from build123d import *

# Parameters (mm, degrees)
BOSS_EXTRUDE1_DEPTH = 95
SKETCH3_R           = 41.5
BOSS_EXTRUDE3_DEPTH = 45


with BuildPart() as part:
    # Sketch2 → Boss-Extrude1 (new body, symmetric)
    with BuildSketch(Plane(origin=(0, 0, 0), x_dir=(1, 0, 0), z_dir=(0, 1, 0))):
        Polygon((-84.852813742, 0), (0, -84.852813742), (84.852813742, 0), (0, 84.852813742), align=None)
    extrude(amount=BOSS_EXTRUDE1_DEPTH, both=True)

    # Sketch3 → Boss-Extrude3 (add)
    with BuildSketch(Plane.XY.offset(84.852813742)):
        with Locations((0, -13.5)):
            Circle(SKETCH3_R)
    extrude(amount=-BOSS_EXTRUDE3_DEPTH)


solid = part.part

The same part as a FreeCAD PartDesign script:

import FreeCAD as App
import Part
import Sketcher
Q = App.Units.Quantity

doc = App.newDocument("Part")
params = doc.addObject("Spreadsheet::Sheet", "Params")
for row, (alias, value) in enumerate([
    ("sketch1_length", "120 mm"),
    ("pad1_length", "190 mm"),
    ("sketch2_diameter", "83 mm"),
    ("pad2_length", "45 mm"),
], start=1):
    params.set(f"A{row}", alias)
    params.set(f"B{row}", "=" + value)
    params.setAlias(f"B{row}", alias)

body = doc.addObject("PartDesign::Body", "Body")

# Sketch on XZ plane
sketch1 = body.newObject("Sketcher::SketchObject", "Sketch")
sketch1.AttachmentSupport = (doc.getObject("XZ_Plane"), [""])
sketch1.MapMode = "FlatFace"
sketch1.addGeometry([
    Part.LineSegment(App.Vector(-85, 0, 0), App.Vector(0, 85, 0)),
    Part.LineSegment(App.Vector(0, 85, 0), App.Vector(85, 0, 0)),
    Part.LineSegment(App.Vector(85, 0, 0), App.Vector(0, -85, 0)),
    Part.LineSegment(App.Vector(0, -85, 0), App.Vector(-85, 0, 0)),
], False)
sketch1.addConstraint([
    Sketcher.Constraint("Coincident", 0, 2, 1, 1),
    Sketcher.Constraint("Coincident", 1, 2, 2, 1),
    Sketcher.Constraint("Coincident", 2, 2, 3, 1),
    Sketcher.Constraint("Coincident", 3, 2, 0, 1),
    Sketcher.Constraint("Symmetric", 0, 2, 2, 2, -1, 1),
    Sketcher.Constraint("Symmetric", 1, 2, 3, 2, -1, 1),
    Sketcher.Constraint("PointOnObject", 0, 2, -2),
    Sketcher.Constraint("PointOnObject", 1, 2, -1),
    Sketcher.Constraint("Perpendicular", 0, 1),
    Sketcher.Constraint("Distance", 0, Q("120 mm")),
])
sketch1.setExpression("Constraints[9]", "Params.sketch1_length")
pad1 = body.newObject("PartDesign::Pad", "Pad")
pad1.Profile = sketch1
pad1.setExpression("Length", "Params.pad1_length")
pad1.Midplane = True

# Sketch on XY plane
sketch2 = body.newObject("Sketcher::SketchObject", "Sketch001")
sketch2.AttachmentSupport = (doc.getObject("XY_Plane"), [""])
sketch2.MapMode = "FlatFace"
sketch2.AttachmentOffset = App.Placement(App.Vector(0, 0, 84.852814), App.Rotation())
sketch2.addGeometry(Part.Circle(App.Vector(0, -14, 0), App.Vector(0, 0, 1), 42), False)
sketch2.addConstraint([
    Sketcher.Constraint("PointOnObject", 0, 3, -2),
    Sketcher.Constraint("Diameter", 0, Q("83 mm")),
    Sketcher.Constraint("DistanceY", 0, 3, -1, 1, Q("13.5 mm")),
])
sketch2.setExpression("Constraints[1]", "Params.sketch2_diameter")
pad2 = body.newObject("PartDesign::Pad", "Pad001")
pad2.Profile = sketch2
pad2.setExpression("Length", "Params.pad2_length")
pad2.Reversed = True

doc.recompute()
